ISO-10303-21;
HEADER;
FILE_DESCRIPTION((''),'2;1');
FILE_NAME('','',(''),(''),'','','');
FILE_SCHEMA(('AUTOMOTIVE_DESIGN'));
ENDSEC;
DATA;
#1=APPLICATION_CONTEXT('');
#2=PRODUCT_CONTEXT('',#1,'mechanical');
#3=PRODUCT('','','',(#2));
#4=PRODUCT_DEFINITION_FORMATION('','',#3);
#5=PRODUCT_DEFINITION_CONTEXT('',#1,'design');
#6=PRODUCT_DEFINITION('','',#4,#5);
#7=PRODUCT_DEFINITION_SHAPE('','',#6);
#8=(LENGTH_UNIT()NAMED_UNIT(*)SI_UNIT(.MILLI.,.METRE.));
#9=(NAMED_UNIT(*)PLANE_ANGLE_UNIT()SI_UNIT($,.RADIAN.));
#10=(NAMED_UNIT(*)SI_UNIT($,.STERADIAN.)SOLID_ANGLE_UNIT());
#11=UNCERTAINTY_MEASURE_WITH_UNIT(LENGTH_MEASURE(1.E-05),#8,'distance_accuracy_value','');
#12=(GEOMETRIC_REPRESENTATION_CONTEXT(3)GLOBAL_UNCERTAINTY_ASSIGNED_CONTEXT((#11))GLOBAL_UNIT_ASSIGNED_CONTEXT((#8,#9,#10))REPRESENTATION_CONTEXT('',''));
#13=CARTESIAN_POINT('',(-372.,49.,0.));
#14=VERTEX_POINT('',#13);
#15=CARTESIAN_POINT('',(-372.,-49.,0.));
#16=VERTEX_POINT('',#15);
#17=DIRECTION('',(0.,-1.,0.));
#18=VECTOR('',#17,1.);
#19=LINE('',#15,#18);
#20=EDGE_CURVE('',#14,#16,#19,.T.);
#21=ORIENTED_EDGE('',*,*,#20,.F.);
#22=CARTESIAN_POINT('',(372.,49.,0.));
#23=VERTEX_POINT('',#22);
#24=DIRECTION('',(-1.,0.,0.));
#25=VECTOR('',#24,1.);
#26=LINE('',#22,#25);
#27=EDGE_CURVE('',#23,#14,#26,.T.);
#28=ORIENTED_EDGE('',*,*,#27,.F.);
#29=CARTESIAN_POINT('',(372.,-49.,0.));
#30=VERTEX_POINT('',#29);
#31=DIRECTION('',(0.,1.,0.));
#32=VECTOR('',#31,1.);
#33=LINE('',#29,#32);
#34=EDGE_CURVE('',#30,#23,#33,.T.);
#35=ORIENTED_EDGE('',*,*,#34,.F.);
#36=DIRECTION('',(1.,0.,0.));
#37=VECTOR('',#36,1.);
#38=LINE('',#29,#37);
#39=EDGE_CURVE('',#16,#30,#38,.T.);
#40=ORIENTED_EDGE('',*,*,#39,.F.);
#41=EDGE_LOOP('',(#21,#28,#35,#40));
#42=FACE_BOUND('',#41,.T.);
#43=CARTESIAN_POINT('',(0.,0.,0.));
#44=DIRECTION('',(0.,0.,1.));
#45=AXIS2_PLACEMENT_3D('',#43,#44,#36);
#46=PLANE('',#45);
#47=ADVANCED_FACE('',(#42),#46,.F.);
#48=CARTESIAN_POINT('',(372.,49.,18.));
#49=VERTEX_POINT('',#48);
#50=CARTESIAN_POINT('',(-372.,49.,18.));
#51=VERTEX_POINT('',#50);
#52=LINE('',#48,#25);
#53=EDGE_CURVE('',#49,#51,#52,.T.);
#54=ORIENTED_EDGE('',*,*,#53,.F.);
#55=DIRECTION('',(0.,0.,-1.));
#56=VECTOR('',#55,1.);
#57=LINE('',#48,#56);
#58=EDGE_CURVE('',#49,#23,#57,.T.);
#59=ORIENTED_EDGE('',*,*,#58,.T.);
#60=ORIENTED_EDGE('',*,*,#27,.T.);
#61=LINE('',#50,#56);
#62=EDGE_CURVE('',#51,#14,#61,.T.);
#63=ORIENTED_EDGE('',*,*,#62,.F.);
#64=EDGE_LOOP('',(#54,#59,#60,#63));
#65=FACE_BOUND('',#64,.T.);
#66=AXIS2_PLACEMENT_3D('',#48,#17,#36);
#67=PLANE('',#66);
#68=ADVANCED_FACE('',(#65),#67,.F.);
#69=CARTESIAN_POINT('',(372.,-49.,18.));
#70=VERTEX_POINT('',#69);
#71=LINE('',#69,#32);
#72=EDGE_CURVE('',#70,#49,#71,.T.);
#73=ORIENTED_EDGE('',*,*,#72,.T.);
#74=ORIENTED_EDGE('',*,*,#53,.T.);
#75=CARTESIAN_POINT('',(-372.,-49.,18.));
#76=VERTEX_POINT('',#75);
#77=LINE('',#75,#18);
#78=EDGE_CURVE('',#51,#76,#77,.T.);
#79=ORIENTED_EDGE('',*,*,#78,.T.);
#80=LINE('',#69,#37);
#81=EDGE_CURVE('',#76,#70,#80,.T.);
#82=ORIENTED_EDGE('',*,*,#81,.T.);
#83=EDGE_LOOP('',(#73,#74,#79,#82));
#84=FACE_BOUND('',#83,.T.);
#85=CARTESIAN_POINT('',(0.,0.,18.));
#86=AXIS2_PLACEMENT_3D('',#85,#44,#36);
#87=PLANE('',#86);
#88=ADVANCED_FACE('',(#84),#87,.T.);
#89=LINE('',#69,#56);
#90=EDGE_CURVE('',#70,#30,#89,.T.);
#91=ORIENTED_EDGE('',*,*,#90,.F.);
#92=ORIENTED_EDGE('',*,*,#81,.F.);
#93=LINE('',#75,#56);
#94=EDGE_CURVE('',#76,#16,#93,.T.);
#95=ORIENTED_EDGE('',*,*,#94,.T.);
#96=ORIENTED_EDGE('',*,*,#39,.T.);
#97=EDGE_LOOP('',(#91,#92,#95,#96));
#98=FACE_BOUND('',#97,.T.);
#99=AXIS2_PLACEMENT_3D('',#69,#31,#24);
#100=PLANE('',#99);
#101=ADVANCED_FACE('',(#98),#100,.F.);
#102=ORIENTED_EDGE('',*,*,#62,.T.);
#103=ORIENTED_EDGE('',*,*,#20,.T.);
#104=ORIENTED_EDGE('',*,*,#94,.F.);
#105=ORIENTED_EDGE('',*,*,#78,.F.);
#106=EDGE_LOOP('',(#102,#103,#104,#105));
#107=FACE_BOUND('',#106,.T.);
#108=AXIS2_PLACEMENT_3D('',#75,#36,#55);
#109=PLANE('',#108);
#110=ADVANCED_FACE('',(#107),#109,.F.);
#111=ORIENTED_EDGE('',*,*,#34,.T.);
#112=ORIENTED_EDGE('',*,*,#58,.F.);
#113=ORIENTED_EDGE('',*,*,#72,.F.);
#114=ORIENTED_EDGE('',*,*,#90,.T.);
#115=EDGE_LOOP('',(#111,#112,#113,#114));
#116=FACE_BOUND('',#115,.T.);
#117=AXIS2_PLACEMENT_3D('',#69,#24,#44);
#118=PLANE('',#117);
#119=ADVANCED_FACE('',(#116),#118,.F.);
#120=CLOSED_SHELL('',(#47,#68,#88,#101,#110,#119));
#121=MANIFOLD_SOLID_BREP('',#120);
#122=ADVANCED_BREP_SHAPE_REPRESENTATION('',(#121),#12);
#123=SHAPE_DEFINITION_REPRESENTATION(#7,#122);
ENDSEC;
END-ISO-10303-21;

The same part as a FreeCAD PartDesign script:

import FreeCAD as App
import Part
import Sketcher

V = App.Vector
Q = App.Units.Quantity

doc = App.newDocument("Part")
body = doc.addObject("PartDesign::Body", "Body")

# Sketch on XY plane
sketch1 = body.newObject("Sketcher::SketchObject", "Sketch")
sketch1.AttachmentSupport = (doc.getObject("XY_Plane"), [""])
sketch1.MapMode = "FlatFace"
sketch1.addGeometry([
    Part.LineSegment(V(-372, 49, 0), V(-372, -49, 0)),
    Part.LineSegment(V(-372, -49, 0), V(372, -49, 0)),
    Part.LineSegment(V(372, -49, 0), V(372, 49, 0)),
    Part.LineSegment(V(372, 49, 0), V(-372, 49, 0)),
], False)
sketch1.addConstraint([
    Sketcher.Constraint("Coincident", 0, 2, 1, 1),
    Sketcher.Constraint("Coincident", 1, 2, 2, 1),
    Sketcher.Constraint("Coincident", 2, 2, 3, 1),
    Sketcher.Constraint("Coincident", 3, 2, 0, 1),
    Sketcher.Constraint("Vertical", 0),
    Sketcher.Constraint("Horizontal", 1),
    Sketcher.Constraint("Vertical", 2),
    Sketcher.Constraint("Horizontal", 3),
    Sketcher.Constraint("Symmetric", 0, 2, 2, 2, -1, 1),
    Sketcher.Constraint("DistanceX", 1, 1, 1, 2, Q("744 mm")),
    Sketcher.Constraint("DistanceY", 0, 2, 0, 1, Q("98 mm")),
])
pad1 = body.newObject("PartDesign::Pad", "Pad")
pad1.Profile = sketch1
pad1.Length = 18

doc.recompute()
